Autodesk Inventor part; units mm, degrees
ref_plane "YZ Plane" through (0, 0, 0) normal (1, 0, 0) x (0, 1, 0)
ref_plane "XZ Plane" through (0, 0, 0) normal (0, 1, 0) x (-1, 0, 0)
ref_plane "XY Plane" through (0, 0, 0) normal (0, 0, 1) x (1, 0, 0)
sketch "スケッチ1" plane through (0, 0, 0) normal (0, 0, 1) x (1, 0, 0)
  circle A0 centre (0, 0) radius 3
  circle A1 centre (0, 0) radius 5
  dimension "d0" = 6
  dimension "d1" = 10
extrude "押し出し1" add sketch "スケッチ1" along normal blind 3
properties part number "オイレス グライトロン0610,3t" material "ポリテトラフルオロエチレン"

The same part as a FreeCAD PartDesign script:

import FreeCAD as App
import Part
import Sketcher
from FreeCAD import Vector
Q = App.Units.Quantity

doc = App.newDocument("Part")
body = doc.addObject("PartDesign::Body", "Body")

sketch1 = doc.addObject("Sketcher::SketchObject", "Sketch")
body.addObject(sketch1)
sketch1.AttachmentSupport = (doc.XY_Plane, [""])
sketch1.MapMode = "FlatFace"
sketch1.addGeometry([
    Part.Circle(Vector(0, 0, 0), Vector(0, 0, 1), 5),
    Part.Circle(Vector(0, 0, 0), Vector(0, 0, 1), 3),
], False)
sketch1.addConstraint([
    Sketcher.Constraint("Coincident", 0, 3, -1, 1),
    Sketcher.Constraint("Coincident", 1, 3, -1, 1),
    Sketcher.Constraint("Diameter", 0, Q("10 mm")),
    Sketcher.Constraint("Diameter", 1, Q("6 mm")),
])
pad1 = doc.addObject("PartDesign::Pad", "Pad")
body.addObject(pad1)
pad1.Profile = sketch1
pad1.Length = 3

doc.recompute()
